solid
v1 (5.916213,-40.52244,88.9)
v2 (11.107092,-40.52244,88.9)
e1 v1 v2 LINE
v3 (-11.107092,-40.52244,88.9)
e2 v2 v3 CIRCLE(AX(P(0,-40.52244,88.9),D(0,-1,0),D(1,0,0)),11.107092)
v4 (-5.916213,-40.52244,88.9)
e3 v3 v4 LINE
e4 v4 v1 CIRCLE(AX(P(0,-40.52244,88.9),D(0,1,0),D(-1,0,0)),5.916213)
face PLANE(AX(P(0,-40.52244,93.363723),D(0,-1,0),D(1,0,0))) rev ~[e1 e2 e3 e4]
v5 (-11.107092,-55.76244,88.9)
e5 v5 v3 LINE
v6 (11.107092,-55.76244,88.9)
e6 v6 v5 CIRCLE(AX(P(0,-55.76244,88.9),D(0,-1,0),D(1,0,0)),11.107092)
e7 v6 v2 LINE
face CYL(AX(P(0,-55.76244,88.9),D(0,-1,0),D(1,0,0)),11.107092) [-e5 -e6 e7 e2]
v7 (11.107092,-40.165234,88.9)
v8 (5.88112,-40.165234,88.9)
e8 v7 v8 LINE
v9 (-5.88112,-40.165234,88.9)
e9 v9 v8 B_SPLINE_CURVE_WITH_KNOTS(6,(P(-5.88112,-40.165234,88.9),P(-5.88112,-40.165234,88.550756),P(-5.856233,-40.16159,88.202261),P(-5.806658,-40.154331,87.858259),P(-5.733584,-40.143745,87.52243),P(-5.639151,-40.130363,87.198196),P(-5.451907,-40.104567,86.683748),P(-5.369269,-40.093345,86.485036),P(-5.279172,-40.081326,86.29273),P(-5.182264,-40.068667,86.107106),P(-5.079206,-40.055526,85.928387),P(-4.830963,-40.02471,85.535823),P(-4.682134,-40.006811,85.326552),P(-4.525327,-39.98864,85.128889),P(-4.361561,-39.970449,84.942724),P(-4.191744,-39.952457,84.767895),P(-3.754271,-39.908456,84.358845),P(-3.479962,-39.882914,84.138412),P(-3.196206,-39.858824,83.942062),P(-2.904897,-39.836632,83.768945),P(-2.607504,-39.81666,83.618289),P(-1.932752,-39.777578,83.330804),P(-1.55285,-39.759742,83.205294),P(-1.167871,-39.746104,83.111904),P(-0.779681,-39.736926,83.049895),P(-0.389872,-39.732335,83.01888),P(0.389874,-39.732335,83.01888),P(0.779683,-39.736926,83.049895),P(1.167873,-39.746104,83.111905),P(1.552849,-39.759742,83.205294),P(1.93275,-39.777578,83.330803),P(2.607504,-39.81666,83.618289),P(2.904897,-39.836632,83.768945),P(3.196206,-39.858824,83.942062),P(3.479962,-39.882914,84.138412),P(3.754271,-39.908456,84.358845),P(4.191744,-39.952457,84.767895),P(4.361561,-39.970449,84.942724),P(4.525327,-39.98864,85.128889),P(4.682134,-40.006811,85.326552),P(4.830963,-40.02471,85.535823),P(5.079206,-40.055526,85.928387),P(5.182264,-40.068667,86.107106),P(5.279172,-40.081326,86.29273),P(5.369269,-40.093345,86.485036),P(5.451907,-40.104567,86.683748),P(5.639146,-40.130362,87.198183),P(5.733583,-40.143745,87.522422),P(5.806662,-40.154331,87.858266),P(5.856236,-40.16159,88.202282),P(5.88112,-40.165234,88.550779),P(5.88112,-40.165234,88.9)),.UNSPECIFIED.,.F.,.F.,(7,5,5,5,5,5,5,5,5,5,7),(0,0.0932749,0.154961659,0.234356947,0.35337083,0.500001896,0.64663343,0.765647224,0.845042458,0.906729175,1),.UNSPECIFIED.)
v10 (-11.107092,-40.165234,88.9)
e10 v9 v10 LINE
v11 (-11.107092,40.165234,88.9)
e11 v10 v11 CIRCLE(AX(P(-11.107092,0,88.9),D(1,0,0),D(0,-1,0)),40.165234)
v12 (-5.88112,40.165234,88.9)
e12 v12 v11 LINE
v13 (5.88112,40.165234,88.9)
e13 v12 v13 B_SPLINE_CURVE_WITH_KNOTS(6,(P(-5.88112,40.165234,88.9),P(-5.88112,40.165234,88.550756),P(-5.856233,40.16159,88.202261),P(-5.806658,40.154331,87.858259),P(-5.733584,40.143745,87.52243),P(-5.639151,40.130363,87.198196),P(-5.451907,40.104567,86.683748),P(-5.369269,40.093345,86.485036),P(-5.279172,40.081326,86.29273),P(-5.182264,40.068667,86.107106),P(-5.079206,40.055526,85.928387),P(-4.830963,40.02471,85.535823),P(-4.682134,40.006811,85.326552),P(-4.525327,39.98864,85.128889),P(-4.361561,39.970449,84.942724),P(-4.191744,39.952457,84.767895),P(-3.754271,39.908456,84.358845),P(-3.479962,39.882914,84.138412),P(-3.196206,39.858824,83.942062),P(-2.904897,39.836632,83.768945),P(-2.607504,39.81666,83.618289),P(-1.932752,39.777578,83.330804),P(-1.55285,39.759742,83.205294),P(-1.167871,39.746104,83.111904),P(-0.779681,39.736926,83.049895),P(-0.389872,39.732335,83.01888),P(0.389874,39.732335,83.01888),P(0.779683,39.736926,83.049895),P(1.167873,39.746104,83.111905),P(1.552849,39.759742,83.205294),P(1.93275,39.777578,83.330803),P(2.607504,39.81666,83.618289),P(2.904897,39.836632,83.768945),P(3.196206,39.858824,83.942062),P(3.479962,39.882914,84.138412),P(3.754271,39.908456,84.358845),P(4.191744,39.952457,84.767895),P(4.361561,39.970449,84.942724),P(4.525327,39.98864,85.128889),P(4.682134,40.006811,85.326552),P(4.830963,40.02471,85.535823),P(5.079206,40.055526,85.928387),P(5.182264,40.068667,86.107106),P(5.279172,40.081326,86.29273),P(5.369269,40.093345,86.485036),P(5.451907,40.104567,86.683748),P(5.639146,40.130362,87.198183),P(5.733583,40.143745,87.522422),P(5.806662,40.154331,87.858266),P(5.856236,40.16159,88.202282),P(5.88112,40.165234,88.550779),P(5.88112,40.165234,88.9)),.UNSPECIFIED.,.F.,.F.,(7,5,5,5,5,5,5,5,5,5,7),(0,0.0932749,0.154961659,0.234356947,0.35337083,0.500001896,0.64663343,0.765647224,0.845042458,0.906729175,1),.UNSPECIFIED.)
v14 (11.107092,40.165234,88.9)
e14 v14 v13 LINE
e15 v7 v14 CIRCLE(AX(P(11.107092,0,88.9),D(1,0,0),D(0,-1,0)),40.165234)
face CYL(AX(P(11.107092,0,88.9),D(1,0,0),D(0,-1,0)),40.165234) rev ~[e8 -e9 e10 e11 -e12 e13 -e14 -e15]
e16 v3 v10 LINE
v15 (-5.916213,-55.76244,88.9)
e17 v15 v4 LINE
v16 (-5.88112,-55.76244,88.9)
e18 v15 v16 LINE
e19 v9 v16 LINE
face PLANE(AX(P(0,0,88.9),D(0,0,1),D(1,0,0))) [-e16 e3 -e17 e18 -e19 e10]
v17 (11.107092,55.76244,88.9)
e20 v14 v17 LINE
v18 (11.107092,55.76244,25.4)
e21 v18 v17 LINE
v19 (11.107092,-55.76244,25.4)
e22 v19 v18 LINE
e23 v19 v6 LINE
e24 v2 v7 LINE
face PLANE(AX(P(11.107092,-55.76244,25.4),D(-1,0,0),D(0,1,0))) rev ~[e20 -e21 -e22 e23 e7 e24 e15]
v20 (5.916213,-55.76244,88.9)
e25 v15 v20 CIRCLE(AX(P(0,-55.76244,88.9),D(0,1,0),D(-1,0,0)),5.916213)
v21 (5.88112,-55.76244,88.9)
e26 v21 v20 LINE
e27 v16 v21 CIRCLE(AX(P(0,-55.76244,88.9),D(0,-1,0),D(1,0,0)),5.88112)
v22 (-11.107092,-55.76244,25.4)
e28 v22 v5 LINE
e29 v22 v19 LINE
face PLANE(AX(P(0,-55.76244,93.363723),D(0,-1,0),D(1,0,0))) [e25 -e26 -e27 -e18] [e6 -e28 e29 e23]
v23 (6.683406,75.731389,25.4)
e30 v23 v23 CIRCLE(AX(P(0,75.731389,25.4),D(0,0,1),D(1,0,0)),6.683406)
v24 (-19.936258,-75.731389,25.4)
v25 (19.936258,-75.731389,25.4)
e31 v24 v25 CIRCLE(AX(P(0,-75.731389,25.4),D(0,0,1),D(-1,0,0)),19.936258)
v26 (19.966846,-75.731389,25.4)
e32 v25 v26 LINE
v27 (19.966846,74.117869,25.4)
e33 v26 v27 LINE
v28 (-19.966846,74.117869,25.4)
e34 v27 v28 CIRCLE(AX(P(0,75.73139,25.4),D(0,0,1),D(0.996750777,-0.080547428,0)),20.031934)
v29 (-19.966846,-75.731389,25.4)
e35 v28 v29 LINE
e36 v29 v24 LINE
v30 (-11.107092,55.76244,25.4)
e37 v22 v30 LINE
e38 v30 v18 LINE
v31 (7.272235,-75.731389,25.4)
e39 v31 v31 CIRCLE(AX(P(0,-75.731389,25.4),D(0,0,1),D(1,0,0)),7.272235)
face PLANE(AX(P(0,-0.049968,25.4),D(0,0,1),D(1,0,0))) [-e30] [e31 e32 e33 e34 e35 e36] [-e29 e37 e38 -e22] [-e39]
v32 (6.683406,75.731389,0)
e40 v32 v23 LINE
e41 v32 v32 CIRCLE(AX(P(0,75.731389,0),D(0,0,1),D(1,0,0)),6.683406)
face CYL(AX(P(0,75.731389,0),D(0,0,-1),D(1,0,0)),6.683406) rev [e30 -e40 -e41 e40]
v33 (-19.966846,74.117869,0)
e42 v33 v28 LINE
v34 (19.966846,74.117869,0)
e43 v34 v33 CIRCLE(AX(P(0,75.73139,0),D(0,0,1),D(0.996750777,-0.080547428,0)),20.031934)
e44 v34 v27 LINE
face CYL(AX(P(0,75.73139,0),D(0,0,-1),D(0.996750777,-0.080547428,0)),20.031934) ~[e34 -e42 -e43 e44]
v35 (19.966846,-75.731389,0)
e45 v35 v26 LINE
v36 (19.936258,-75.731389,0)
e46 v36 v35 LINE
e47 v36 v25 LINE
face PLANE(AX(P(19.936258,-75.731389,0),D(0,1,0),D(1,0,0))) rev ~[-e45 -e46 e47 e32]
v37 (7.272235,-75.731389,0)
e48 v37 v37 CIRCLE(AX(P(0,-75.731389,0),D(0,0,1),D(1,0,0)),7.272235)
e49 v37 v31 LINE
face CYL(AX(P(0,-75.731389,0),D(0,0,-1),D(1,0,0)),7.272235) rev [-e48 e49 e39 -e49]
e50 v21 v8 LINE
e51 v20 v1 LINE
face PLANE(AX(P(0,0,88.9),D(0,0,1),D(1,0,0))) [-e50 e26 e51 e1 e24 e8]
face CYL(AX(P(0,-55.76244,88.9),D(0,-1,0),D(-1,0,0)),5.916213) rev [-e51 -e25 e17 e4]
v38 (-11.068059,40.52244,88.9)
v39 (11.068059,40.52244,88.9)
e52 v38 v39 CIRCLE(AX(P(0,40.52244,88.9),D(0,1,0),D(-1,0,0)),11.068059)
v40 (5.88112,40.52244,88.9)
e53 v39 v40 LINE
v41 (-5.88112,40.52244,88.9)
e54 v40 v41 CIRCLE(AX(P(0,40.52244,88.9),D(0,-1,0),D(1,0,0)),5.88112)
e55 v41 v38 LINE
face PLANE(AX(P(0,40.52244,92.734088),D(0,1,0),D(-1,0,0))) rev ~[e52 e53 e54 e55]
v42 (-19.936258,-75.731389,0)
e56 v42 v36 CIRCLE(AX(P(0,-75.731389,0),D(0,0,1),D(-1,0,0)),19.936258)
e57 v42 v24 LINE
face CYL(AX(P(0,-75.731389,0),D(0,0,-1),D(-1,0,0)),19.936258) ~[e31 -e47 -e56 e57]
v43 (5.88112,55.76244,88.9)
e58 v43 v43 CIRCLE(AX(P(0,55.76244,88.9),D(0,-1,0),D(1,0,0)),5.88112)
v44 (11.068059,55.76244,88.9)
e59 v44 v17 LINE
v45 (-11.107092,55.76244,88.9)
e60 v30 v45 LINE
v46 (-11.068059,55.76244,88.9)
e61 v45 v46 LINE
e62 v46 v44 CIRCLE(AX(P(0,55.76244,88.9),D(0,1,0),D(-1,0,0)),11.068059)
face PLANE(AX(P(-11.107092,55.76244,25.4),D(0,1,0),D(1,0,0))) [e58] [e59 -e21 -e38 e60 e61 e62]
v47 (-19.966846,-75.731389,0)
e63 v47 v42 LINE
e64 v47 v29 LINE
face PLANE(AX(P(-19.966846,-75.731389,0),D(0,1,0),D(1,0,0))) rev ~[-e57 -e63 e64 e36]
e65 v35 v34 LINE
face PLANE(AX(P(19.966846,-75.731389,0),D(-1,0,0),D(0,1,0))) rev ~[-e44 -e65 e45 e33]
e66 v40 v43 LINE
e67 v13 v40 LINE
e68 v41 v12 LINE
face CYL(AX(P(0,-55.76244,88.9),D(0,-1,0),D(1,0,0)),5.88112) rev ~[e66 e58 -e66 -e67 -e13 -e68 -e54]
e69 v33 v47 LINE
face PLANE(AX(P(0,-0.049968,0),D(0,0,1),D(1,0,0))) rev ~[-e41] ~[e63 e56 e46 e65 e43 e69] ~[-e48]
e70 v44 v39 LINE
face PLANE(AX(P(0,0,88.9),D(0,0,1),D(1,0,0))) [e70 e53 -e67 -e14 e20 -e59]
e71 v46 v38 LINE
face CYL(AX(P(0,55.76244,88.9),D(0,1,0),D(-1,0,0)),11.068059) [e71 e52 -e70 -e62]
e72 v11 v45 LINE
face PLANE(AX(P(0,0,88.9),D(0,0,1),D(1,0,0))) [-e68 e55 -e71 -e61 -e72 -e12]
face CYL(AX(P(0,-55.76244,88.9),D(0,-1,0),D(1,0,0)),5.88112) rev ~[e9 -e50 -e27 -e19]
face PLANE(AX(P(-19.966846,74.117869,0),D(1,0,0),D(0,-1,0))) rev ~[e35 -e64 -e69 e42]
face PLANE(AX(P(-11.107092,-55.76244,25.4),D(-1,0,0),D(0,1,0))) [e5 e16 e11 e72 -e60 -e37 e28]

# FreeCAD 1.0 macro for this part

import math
import FreeCAD as App
import Part
import Sketcher
Q = App.Units.Quantity

doc = App.newDocument("Part")
body = doc.addObject("PartDesign::Body", "Body")

sketch1 = body.newObject("Sketcher::SketchObject", "Sketch")
sketch1.AttachmentSupport = (doc.getObject("XY_Plane"), [""])
sketch1.MapMode = "FlatFace"
sketch1.addGeometry(Part.LineSegment(App.Vector(-19.966846, 74.117869, 0), App.Vector(-19.966846, -75.731389, 0)), False)
sketch1.addGeometry(Part.LineSegment(App.Vector(-19.966846, -75.731389, 0), App.Vector(-19.936258, -75.731389, 0)), False)
sketch1.addGeometry(Part.ArcOfCircle(Part.Circle(App.Vector(0, -75.731389, 0), App.Vector(0, 0, 1), 19.936258), math.radians(180), math.radians(360)), False)
sketch1.addGeometry(Part.LineSegment(App.Vector(19.936258, -75.731389, 0), App.Vector(19.966846, -75.731389, 0)), False)
sketch1.addGeometry(Part.LineSegment(App.Vector(19.966846, -75.731389, 0), App.Vector(19.966846, 74.117869, 0)), False)
sketch1.addGeometry(Part.ArcOfCircle(Part.Circle(App.Vector(0, 75.73139, 0), App.Vector(0, 0, 1), 20.031934), math.radians(-4.620033), math.radians(184.620033)), False)
sketch1.addGeometry(Part.Circle(App.Vector(0, -75.731389, 0), App.Vector(0, 0, 1), 7.272235), False)
sketch1.addGeometry(Part.Circle(App.Vector(0, 75.731389, 0), App.Vector(0, 0, 1), 6.683406), False)
sketch1.addConstraint(Sketcher.Constraint("Coincident", 0, 2, 1, 1))
sketch1.addConstraint(Sketcher.Constraint("Coincident", 1, 2, 2, 1))
sketch1.addConstraint(Sketcher.Constraint("Coincident", 2, 2, 3, 1))
sketch1.addConstraint(Sketcher.Constraint("Coincident", 3, 2, 4, 1))
sketch1.addConstraint(Sketcher.Constraint("Coincident", 4, 2, 5, 1))
sketch1.addConstraint(Sketcher.Constraint("Coincident", 5, 2, 0, 1))
sketch1.addConstraint(Sketcher.Constraint("Vertical", 0))
sketch1.addConstraint(Sketcher.Constraint("Horizontal", 1))
sketch1.addConstraint(Sketcher.Constraint("Horizontal", 3))
sketch1.addConstraint(Sketcher.Constraint("Vertical", 4))
sketch1.addConstraint(Sketcher.Constraint("Coincident", 6, 3, 2, 3))
sketch1.addConstraint(Sketcher.Constraint("Coincident", 7, 3, 5, 3))
sketch1.addConstraint(Sketcher.Constraint("Symmetric", 2, 3, 5, 3, -1, 1))
sketch1.addConstraint(Sketcher.Constraint("Symmetric", 1, 2, 2, 2, -2))
sketch1.addConstraint(Sketcher.Constraint("Horizontal", 6, 3, 0, 2))
sketch1.addConstraint(Sketcher.Constraint("Horizontal", 4, 2, 5, 2))
sketch1.addConstraint(Sketcher.Constraint("Diameter", 6, 14.54447))
sketch1.addConstraint(Sketcher.Constraint("Diameter", 7, 13.366812))
sketch1.addConstraint(Sketcher.Constraint("Radius", 2, 19.936258))
sketch1.addConstraint(Sketcher.Constraint("Radius", 5, 20.031934))
sketch1.addConstraint(Sketcher.Constraint("DistanceX", 1, 1, 1, 2, 0.030588))
sketch1.addConstraint(Sketcher.Constraint("DistanceY", 0, 2, 0, 1, 149.849258))
pad1 = body.newObject("PartDesign::Pad", "Pad")
pad1.Profile = sketch1
pad1.Length = Q("1 in")

sketch2 = body.newObject("Sketcher::SketchObject", "Sketch001")
sketch2.AttachmentSupport = (doc.getObject("XY_Plane"), [""])
sketch2.MapMode = "FlatFace"
sketch2.AttachmentOffset = App.Placement(App.Vector(0, 0, 1 * 25.4), App.Rotation())
sketch2.addGeometry(Part.LineSegment(App.Vector(-11.107092, 55.76244, 0), App.Vector(-11.107092, -55.76244, 0)), False)
sketch2.addGeometry(Part.LineSegment(App.Vector(-11.107092, -55.76244, 0), App.Vector(11.107092, -55.76244, 0)), False)
sketch2.addGeometry(Part.LineSegment(App.Vector(11.107092, -55.76244, 0), App.Vector(11.107092, 55.76244, 0)), False)
sketch2.addGeometry(Part.LineSegment(App.Vector(11.107092, 55.76244, 0), App.Vector(-11.107092, 55.76244, 0)), False)
sketch2.addConstraint(Sketcher.Constraint("Coincident", 0, 2, 1, 1))
sketch2.addConstraint(Sketcher.Constraint("Coincident", 1, 2, 2, 1))
sketch2.addConstraint(Sketcher.Constraint("Coincident", 2, 2, 3, 1))
sketch2.addConstraint(Sketcher.Constraint("Coincident", 3, 2, 0, 1))
sketch2.addConstraint(Sketcher.Constraint("Vertical", 0))
sketch2.addConstraint(Sketcher.Constraint("Horizontal", 1))
sketch2.addConstraint(Sketcher.Constraint("Vertical", 2))
sketch2.addConstraint(Sketcher.Constraint("Horizontal", 3))
sketch2.addConstraint(Sketcher.Constraint("Symmetric", 0, 2, 2, 2, -1, 1))
sketch2.addConstraint(Sketcher.Constraint("DistanceY", 0, 2, 0, 1, 111.52488))
sketch2.addConstraint(Sketcher.Constraint("DistanceX", 1, 1, 1, 2, 22.214184))
pad2 = body.newObject("PartDesign::Pad", "Pad001")
pad2.Profile = sketch2
pad2.Length = Q("2.5 in")

sketch3 = body.newObject("Sketcher::SketchObject", "Sketch002")
sketch3.AttachmentSupport = (doc.getObject("YZ_Plane"), [""])
sketch3.MapMode = "FlatFace"
sketch3.AttachmentOffset = App.Placement(App.Vector(0, 0, 11.107092), App.Rotation())
sketch3.addGeometry(Part.LineSegment(App.Vector(40.165234, 88.9, 0), App.Vector(-40.165234, 88.9, 0)), False)
sketch3.addGeometry(Part.ArcOfCircle(Part.Circle(App.Vector(0, 88.9, 0), App.Vector(0, 0, 1), 40.165234), math.radians(180), math.radians(360)), False)
sketch3.addConstraint(Sketcher.Constraint("Coincident", 0, 1, 1, 2))
sketch3.addConstraint(Sketcher.Constraint("Coincident", 1, 1, 0, 2))
sketch3.addConstraint(Sketcher.Constraint("Horizontal", 0))
sketch3.addConstraint(Sketcher.Constraint("PointOnObject", 1, 3, -2))
sketch3.addConstraint(Sketcher.Constraint("Horizontal", 1, 3, 0, 1))
sketch3.addConstraint(Sketcher.Constraint("DistanceY", -1, 1, 1, 3, Q("3.5 in")))
sketch3.addConstraint(Sketcher.Constraint("Radius", 1, 40.165234))
pocket1 = body.newObject("PartDesign::Pocket", "Pocket")
pocket1.Profile = sketch3
pocket1.Type = "ThroughAll"

sketch4 = body.newObject("Sketcher::SketchObject", "Sketch003")
sketch4.AttachmentSupport = (doc.getObject("XZ_Plane"), [""])
sketch4.MapMode = "FlatFace"
sketch4.AttachmentOffset = App.Placement(App.Vector(0, 0, 55.76244), App.Rotation())
sketch4.addGeometry(Part.LineSegment(App.Vector(5.916213, 88.9, 0), App.Vector(11.107092, 88.9, 0)), False)
sketch4.addGeometry(Part.ArcOfCircle(Part.Circle(App.Vector(0, 88.9, 0), App.Vector(0, 0, 1), 11.107092), math.radians(0), math.radians(180)), False)
sketch4.addGeometry(Part.LineSegment(App.Vector(-11.107092, 88.9, 0), App.Vector(-5.916213, 88.9, 0)), False)
sketch4.addGeometry(Part.ArcOfCircle(Part.Circle(App.Vector(0, 88.9, 0), App.Vector(0, 0, 1), 5.916213), math.radians(0), math.radians(180)), False)
sketch4.addConstraint(Sketcher.Constraint("Coincident", 0, 2, 1, 1))
sketch4.addConstraint(Sketcher.Constraint("Coincident", 1, 2, 2, 1))
sketch4.addConstraint(Sketcher.Constraint("Coincident", 2, 2, 3, 2))
sketch4.addConstraint(Sketcher.Constraint("Coincident", 3, 1, 0, 1))
sketch4.addConstraint(Sketcher.Constraint("Horizontal", 0))
sketch4.addConstraint(Sketcher.Constraint("Horizontal", 2))
sketch4.addConstraint(Sketcher.Constraint("Coincident", 3, 3, 1, 3))
sketch4.addConstraint(Sketcher.Constraint("Symmetric", 0, 2, 1, 2, -2))
sketch4.addConstraint(Sketcher.Constraint("Horizontal", 3, 3, 0, 2))
sketch4.addConstraint(Sketcher.Constraint("DistanceY", -1, 1, 1, 3, Q("3.5 in")))
sketch4.addConstraint(Sketcher.Constraint("Radius", 1, 11.107092))
sketch4.addConstraint(Sketcher.Constraint("Radius", 3, 5.916213))
pad3 = body.newObject("PartDesign::Pad", "Pad002")
pad3.Profile = sketch4
pad3.Length = Q("0.6 in")
pad3.Reversed = True

sketch5 = body.newObject("Sketcher::SketchObject", "Sketch004")
sketch5.AttachmentSupport = (doc.getObject("XZ_Plane"), [""])
sketch5.MapMode = "FlatFace"
sketch5.AttachmentOffset = App.Placement(App.Vector(0, 0, -55.76244), App.Rotation())
sketch5.addGeometry(Part.LineSegment(App.Vector(11.068059, 88.9, 0), App.Vector(-11.068059, 88.9, 0)), False)
sketch5.addGeometry(Part.ArcOfCircle(Part.Circle(App.Vector(0, 88.9, 0), App.Vector(0, 0, 1), 11.068059), math.radians(0), math.radians(180)), False)
sketch5.addConstraint(Sketcher.Constraint("Coincident", 0, 1, 1, 1))
sketch5.addConstraint(Sketcher.Constraint("Coincident", 1, 2, 0, 2))
sketch5.addConstraint(Sketcher.Constraint("Horizontal", 0))
sketch5.addConstraint(Sketcher.Constraint("PointOnObject", 1, 3, -2))
sketch5.addConstraint(Sketcher.Constraint("Horizontal", 1, 3, 0, 1))
sketch5.addConstraint(Sketcher.Constraint("DistanceY", -1, 1, 1, 3, Q("3.5 in")))
sketch5.addConstraint(Sketcher.Constraint("Radius", 1, 11.068059))
pad4 = body.newObject("PartDesign::Pad", "Pad003")
pad4.Profile = sketch5
pad4.Length = Q("0.6 in")

sketch6 = body.newObject("Sketcher::SketchObject", "Sketch005")
sketch6.AttachmentSupport = (doc.getObject("XZ_Plane"), [""])
sketch6.MapMode = "FlatFace"
sketch6.AttachmentOffset = App.Placement(App.Vector(0, 0, 55.76244), App.Rotation())
sketch6.addGeometry(Part.Circle(App.Vector(0, 88.9, 0), App.Vector(0, 0, 1), 5.88112), False)
sketch6.addConstraint(Sketcher.Constraint("PointOnObject", 0, 3, -2))
sketch6.addConstraint(Sketcher.Constraint("DistanceY", -1, 1, 0, 3, Q("3.5 in")))
sketch6.addConstraint(Sketcher.Constraint("Diameter", 0, 11.76224))
pocket2 = body.newObject("PartDesign::Pocket", "Pocket001")
pocket2.Profile = sketch6
pocket2.Type = "ThroughAll"

doc.recompute()
